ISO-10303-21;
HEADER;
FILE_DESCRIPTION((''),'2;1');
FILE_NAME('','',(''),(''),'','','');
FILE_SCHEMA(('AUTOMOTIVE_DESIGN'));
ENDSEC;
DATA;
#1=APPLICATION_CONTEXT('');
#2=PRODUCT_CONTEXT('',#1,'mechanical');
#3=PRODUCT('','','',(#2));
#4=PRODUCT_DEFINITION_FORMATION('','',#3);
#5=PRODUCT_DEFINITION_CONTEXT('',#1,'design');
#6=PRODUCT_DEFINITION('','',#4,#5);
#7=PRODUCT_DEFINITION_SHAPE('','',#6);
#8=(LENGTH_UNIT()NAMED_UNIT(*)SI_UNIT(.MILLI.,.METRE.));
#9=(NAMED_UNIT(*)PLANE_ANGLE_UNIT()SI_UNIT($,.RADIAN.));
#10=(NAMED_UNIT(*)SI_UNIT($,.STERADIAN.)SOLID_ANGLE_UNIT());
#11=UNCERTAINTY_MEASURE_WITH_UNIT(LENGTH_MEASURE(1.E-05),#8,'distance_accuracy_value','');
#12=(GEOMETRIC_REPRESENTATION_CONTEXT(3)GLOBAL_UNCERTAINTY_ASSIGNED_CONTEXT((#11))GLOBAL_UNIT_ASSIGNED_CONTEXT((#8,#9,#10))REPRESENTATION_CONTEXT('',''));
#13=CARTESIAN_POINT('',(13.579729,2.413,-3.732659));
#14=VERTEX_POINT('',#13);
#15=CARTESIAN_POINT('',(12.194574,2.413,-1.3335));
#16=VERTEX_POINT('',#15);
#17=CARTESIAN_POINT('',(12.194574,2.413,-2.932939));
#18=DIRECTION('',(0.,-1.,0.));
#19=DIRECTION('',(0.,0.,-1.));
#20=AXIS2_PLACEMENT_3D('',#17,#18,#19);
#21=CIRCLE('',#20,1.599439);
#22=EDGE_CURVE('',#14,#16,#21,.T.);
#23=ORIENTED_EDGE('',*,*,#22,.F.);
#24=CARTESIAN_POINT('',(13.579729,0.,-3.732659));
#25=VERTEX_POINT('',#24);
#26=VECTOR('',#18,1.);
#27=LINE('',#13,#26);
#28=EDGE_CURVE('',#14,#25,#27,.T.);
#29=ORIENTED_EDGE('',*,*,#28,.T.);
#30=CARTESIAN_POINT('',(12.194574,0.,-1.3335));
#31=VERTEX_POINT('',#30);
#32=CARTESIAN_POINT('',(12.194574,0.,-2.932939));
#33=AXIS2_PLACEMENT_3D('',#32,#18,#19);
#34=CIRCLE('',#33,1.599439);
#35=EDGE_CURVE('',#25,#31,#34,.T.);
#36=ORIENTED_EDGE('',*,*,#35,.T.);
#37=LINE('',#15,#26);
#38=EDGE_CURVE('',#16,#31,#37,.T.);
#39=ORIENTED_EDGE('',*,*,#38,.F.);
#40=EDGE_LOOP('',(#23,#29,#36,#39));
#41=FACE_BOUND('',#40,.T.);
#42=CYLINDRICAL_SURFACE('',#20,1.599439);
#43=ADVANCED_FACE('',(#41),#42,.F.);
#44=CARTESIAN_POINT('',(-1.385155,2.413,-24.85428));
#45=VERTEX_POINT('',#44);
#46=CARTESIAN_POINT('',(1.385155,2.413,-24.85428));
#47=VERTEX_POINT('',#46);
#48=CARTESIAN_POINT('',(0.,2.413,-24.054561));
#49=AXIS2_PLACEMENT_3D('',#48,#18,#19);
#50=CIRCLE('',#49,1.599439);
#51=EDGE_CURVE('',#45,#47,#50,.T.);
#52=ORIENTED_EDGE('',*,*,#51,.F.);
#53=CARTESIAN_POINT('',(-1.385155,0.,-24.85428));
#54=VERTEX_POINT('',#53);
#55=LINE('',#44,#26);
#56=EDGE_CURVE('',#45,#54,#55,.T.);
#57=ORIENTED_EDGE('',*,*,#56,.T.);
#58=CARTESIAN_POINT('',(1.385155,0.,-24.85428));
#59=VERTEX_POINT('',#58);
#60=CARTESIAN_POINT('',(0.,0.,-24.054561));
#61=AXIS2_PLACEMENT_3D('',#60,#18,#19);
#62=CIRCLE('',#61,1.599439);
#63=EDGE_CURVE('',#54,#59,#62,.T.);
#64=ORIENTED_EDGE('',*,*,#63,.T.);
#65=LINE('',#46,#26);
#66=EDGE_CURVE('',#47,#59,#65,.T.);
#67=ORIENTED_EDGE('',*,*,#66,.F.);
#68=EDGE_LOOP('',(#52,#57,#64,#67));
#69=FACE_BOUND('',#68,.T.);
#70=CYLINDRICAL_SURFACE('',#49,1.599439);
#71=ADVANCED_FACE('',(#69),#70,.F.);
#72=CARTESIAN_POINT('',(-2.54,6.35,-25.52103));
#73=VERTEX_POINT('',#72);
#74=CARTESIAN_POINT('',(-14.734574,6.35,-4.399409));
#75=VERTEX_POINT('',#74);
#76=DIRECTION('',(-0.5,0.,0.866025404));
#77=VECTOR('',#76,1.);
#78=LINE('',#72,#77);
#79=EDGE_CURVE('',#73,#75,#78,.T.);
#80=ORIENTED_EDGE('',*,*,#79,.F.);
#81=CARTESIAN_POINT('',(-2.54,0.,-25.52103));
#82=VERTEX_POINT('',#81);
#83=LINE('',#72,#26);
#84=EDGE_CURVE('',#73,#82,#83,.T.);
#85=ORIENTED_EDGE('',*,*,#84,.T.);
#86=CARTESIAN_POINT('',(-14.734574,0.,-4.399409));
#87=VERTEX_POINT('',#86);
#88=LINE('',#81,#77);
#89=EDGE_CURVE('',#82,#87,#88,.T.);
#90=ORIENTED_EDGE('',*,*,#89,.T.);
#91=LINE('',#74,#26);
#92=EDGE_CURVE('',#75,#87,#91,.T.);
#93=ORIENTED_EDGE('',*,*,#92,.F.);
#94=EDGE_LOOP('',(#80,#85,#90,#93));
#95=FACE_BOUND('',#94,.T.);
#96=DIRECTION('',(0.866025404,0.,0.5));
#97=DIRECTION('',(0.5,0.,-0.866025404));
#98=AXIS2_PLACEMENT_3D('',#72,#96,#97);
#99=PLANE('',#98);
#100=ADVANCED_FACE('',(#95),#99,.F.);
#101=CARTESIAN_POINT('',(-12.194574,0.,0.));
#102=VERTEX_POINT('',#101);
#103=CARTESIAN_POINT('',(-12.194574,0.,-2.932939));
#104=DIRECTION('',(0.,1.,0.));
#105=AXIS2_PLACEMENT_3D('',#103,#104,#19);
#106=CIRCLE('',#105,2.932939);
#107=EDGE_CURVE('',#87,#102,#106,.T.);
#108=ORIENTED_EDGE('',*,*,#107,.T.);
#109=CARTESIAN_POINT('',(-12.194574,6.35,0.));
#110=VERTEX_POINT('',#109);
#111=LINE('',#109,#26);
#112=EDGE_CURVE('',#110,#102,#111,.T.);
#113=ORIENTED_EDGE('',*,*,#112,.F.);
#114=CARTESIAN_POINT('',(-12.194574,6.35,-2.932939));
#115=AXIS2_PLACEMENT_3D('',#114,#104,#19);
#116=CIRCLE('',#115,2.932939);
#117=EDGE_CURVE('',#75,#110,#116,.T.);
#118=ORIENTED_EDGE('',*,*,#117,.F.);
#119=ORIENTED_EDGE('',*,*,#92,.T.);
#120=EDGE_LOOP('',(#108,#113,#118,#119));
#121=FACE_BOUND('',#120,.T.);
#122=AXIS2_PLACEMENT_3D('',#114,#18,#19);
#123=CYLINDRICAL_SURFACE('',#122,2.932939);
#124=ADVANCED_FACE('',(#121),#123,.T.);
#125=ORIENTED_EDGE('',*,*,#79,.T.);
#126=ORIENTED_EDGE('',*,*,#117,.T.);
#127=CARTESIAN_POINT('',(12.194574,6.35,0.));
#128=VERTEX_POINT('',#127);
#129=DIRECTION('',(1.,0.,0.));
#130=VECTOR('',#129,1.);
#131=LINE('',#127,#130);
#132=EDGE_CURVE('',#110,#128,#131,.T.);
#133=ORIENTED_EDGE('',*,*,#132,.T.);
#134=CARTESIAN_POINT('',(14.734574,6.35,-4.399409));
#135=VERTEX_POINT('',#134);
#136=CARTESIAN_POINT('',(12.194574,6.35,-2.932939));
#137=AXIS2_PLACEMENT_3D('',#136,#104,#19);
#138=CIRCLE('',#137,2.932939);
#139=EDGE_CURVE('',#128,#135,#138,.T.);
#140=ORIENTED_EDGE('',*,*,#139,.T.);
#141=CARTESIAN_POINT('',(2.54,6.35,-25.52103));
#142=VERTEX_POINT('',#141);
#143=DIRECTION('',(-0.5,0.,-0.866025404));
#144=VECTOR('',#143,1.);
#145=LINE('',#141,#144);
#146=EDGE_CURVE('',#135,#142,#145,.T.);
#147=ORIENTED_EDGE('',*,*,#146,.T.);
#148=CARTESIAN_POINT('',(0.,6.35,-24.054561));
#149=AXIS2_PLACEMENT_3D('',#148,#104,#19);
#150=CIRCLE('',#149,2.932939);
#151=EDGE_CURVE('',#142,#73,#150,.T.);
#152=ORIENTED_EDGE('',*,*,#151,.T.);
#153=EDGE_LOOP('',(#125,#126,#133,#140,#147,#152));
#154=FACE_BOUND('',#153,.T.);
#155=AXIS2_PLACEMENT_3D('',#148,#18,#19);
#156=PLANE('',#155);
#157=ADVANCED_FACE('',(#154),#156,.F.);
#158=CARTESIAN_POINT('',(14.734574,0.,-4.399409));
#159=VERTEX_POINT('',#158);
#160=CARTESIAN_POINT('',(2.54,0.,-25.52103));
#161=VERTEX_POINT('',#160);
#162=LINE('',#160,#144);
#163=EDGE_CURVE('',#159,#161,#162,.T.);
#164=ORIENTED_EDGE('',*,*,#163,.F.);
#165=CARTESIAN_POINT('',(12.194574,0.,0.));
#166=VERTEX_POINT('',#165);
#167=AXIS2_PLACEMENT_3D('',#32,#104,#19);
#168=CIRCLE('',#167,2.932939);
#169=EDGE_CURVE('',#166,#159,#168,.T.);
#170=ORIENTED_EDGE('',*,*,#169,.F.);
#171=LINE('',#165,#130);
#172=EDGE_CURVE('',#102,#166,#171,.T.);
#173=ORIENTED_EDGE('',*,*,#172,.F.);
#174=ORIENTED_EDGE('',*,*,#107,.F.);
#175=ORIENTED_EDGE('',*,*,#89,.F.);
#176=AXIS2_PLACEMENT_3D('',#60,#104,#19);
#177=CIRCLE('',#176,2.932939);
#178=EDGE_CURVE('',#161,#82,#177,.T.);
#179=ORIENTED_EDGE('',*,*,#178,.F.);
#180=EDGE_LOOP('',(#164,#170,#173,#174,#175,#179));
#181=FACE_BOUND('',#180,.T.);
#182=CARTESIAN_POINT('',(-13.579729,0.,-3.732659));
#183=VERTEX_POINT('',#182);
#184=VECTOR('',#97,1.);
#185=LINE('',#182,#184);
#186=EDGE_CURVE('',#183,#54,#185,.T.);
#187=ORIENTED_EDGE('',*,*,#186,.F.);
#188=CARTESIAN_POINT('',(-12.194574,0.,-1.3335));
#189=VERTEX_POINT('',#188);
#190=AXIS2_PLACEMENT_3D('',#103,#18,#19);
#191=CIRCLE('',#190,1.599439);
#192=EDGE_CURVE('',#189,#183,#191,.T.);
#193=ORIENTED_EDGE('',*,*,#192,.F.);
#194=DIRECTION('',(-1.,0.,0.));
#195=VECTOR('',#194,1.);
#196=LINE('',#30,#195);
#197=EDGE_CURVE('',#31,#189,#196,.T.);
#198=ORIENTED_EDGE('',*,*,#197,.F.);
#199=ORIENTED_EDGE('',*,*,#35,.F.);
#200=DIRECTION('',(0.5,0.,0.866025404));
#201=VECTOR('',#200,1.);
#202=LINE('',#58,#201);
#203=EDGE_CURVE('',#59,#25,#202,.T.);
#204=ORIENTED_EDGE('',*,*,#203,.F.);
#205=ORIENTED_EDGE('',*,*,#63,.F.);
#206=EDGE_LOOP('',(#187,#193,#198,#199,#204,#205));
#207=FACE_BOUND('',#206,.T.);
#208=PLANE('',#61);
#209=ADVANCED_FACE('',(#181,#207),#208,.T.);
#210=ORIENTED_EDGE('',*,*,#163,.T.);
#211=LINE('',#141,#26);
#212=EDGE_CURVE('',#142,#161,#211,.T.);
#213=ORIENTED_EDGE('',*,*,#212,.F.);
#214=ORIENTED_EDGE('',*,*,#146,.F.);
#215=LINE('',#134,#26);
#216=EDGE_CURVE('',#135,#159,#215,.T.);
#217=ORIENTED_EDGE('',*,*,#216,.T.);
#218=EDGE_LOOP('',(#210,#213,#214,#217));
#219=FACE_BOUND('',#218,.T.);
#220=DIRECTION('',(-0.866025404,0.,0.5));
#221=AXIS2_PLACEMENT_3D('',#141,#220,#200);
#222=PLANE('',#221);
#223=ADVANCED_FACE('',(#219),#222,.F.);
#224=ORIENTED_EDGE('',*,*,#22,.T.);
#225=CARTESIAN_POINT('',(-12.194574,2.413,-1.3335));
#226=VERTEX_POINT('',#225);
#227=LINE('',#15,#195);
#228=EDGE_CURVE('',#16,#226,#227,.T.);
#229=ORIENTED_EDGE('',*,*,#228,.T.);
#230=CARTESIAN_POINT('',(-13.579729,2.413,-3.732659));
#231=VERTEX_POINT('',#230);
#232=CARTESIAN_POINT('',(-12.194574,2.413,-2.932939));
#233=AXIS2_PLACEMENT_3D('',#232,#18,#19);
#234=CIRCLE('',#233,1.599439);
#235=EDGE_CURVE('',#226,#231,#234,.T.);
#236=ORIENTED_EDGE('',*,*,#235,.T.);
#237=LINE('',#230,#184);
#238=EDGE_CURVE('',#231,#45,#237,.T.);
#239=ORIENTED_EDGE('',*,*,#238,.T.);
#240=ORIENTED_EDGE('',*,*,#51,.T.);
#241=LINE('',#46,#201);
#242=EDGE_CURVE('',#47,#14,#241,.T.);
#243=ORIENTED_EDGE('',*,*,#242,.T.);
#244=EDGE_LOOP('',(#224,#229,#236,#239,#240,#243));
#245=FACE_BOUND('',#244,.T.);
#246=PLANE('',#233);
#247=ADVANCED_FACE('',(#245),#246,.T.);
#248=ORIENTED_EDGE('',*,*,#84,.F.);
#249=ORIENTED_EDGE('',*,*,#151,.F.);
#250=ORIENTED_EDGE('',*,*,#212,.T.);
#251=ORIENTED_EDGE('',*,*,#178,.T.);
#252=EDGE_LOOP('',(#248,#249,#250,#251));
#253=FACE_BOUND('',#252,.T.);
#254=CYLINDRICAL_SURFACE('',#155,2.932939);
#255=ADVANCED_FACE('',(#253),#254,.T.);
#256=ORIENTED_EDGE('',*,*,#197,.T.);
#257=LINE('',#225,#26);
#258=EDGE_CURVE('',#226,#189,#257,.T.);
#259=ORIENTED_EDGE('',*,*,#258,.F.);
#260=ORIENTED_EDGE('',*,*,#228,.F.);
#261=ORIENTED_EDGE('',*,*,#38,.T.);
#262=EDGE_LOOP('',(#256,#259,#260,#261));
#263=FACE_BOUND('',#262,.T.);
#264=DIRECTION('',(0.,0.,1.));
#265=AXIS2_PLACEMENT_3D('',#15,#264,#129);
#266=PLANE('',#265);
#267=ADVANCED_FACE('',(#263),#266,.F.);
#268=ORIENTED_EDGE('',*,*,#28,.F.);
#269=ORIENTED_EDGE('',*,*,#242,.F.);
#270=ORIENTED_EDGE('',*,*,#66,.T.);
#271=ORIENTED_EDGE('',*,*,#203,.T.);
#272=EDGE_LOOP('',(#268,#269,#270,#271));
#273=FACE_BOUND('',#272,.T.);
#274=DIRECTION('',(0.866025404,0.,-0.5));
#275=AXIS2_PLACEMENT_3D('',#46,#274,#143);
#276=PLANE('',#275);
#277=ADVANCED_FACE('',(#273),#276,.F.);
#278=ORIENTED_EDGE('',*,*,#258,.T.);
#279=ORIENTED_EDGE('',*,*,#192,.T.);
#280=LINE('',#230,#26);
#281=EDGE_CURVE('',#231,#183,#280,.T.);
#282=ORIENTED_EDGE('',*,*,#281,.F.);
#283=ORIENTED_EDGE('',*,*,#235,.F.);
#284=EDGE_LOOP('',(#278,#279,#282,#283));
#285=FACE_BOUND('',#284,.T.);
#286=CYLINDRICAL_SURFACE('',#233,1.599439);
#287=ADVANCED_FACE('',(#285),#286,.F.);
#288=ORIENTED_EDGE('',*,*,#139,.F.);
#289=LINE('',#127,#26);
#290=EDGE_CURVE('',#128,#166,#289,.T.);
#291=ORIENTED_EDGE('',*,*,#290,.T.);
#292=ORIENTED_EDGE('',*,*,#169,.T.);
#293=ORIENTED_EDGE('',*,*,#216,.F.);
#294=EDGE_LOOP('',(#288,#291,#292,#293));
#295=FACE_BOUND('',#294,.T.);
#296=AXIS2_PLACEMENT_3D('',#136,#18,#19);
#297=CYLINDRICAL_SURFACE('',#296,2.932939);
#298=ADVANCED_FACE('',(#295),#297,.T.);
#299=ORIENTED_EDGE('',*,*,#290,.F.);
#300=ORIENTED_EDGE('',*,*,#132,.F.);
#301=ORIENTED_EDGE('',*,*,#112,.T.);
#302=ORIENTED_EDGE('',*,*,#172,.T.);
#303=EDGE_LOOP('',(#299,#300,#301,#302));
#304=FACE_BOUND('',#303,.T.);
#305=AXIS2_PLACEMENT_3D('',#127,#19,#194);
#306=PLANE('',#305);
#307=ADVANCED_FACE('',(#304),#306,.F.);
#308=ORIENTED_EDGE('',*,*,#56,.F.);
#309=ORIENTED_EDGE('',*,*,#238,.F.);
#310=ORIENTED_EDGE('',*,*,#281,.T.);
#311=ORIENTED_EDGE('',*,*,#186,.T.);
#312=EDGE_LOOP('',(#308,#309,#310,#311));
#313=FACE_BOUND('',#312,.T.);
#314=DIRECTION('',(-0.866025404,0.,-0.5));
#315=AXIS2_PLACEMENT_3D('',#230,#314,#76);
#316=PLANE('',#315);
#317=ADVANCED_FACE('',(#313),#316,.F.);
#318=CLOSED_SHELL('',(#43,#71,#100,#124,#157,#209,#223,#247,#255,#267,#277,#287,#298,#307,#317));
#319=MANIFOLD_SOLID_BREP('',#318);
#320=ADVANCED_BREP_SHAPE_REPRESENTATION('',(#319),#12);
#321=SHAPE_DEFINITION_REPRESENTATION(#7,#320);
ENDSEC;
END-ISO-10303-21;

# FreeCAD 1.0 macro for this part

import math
import FreeCAD as App
import Part
import Sketcher
Q = App.Units.Quantity

doc = App.newDocument("Part")
body = doc.addObject("PartDesign::Body", "Body")

# Sketch on XZ plane
sketch1 = body.newObject("Sketcher::SketchObject", "Sketch")
sketch1.AttachmentSupport = (doc.getObject("XZ_Plane"), [""])
sketch1.MapMode = "FlatFace"
sketch1.addGeometry([
    Part.LineSegment(App.Vector(14.734574, -4.399409, 0), App.Vector(2.54, -25.52103, 0)),  # 0
    Part.ArcOfCircle(Part.Circle(App.Vector(0, -24.054561, 0), App.Vector(0, 0, 1), 2.932939), math.radians(-150), math.radians(-30)),  # 1
    Part.LineSegment(App.Vector(-2.54, -25.52103, 0), App.Vector(-14.734574, -4.399409, 0)),  # 2
    Part.ArcOfCircle(Part.Circle(App.Vector(-12.194574, -2.932939, 0), App.Vector(0, 0, 1), 2.932939), math.radians(90), math.radians(210)),  # 3
    Part.LineSegment(App.Vector(-12.194574, 0, 0), App.Vector(12.194574, 0, 0)),  # 4
    Part.ArcOfCircle(Part.Circle(App.Vector(12.194574, -2.932939, 0), App.Vector(0, 0, 1), 2.932939), math.radians(-30), math.radians(90)),  # 5
], False)
sketch1.addConstraint([
    Sketcher.Constraint("Tangent", 0, 2, 1, 2),
    Sketcher.Constraint("Tangent", 1, 1, 2, 1),
    Sketcher.Constraint("Tangent", 2, 2, 3, 2),
    Sketcher.Constraint("Tangent", 3, 1, 4, 1),
    Sketcher.Constraint("Tangent", 4, 2, 5, 2),
    Sketcher.Constraint("Tangent", 5, 1, 0, 1),
    Sketcher.Constraint("Horizontal", 4),
    Sketcher.Constraint("Equal", 1, 3),
    Sketcher.Constraint("Equal", 3, 5),
    Sketcher.Constraint("Symmetric", 3, 1, 4, 2, -1, 1),
    Sketcher.Constraint("PointOnObject", 1, 3, -2),
    Sketcher.Constraint("Angle", 0, Q("-120 deg")),
    Sketcher.Constraint("DistanceX", -1, 1, 0, 2, Q("0.1 in")),
    Sketcher.Constraint("DistanceX", 4, 1, 4, 2, Q("24.389147 mm")),
])
pad1 = body.newObject("PartDesign::Pad", "Pad")
pad1.Profile = sketch1
pad1.Length = Q("0.25 in")
pad1.Reversed = True

# Sketch on XZ plane
sketch2 = body.newObject("Sketcher::SketchObject", "Sketch001")
sketch2.AttachmentSupport = (doc.getObject("XZ_Plane"), [""])
sketch2.MapMode = "FlatFace"
sketch2.addGeometry([
    Part.LineSegment(App.Vector(-13.579729, -3.732659, 0), App.Vector(-1.385155, -24.85428, 0)),  # 0
    Part.ArcOfCircle(Part.Circle(App.Vector(0, -24.054561, 0), App.Vector(0, 0, 1), 1.599439), math.radians(-150), math.radians(-30)),  # 1
    Part.LineSegment(App.Vector(1.385155, -24.85428, 0), App.Vector(13.579729, -3.732659, 0)),  # 2
    Part.ArcOfCircle(Part.Circle(App.Vector(12.194574, -2.932939, 0), App.Vector(0, 0, 1), 1.599439), math.radians(-30), math.radians(90)),  # 3
    Part.LineSegment(App.Vector(12.194574, -1.3335, 0), App.Vector(-12.194574, -1.3335, 0)),  # 4
    Part.ArcOfCircle(Part.Circle(App.Vector(-12.194574, -2.932939, 0), App.Vector(0, 0, 1), 1.599439), math.radians(90), math.radians(210)),  # 5
], False)
sketch2.addConstraint([
    Sketcher.Constraint("Tangent", 0, 2, 1, 1),
    Sketcher.Constraint("Tangent", 1, 2, 2, 1),
    Sketcher.Constraint("Tangent", 2, 2, 3, 1),
    Sketcher.Constraint("Tangent", 3, 2, 4, 1),
    Sketcher.Constraint("Tangent", 4, 2, 5, 1),
    Sketcher.Constraint("Tangent", 5, 2, 0, 1),
    Sketcher.Constraint("Horizontal", 4),
    Sketcher.Constraint("Equal", 1, 3),
    Sketcher.Constraint("Equal", 3, 5),
    Sketcher.Constraint("Symmetric", 0, 2, 1, 2, -2),
    Sketcher.Constraint("Angle", 0, Q("-60 deg")),
    Sketcher.Constraint("Radius", 1, Q("1.599439 mm")),
    Sketcher.Constraint("DistanceY", 3, 2, -1, 1, Q("0.0525 in")),
    Sketcher.Constraint("DistanceY", 1, 3, 2, 2, Q("20.321902 mm")),
])
pocket1 = body.newObject("PartDesign::Pocket", "Pocket")
pocket1.Profile = sketch2
pocket1.Length = Q("0.095 in")

doc.recompute()
